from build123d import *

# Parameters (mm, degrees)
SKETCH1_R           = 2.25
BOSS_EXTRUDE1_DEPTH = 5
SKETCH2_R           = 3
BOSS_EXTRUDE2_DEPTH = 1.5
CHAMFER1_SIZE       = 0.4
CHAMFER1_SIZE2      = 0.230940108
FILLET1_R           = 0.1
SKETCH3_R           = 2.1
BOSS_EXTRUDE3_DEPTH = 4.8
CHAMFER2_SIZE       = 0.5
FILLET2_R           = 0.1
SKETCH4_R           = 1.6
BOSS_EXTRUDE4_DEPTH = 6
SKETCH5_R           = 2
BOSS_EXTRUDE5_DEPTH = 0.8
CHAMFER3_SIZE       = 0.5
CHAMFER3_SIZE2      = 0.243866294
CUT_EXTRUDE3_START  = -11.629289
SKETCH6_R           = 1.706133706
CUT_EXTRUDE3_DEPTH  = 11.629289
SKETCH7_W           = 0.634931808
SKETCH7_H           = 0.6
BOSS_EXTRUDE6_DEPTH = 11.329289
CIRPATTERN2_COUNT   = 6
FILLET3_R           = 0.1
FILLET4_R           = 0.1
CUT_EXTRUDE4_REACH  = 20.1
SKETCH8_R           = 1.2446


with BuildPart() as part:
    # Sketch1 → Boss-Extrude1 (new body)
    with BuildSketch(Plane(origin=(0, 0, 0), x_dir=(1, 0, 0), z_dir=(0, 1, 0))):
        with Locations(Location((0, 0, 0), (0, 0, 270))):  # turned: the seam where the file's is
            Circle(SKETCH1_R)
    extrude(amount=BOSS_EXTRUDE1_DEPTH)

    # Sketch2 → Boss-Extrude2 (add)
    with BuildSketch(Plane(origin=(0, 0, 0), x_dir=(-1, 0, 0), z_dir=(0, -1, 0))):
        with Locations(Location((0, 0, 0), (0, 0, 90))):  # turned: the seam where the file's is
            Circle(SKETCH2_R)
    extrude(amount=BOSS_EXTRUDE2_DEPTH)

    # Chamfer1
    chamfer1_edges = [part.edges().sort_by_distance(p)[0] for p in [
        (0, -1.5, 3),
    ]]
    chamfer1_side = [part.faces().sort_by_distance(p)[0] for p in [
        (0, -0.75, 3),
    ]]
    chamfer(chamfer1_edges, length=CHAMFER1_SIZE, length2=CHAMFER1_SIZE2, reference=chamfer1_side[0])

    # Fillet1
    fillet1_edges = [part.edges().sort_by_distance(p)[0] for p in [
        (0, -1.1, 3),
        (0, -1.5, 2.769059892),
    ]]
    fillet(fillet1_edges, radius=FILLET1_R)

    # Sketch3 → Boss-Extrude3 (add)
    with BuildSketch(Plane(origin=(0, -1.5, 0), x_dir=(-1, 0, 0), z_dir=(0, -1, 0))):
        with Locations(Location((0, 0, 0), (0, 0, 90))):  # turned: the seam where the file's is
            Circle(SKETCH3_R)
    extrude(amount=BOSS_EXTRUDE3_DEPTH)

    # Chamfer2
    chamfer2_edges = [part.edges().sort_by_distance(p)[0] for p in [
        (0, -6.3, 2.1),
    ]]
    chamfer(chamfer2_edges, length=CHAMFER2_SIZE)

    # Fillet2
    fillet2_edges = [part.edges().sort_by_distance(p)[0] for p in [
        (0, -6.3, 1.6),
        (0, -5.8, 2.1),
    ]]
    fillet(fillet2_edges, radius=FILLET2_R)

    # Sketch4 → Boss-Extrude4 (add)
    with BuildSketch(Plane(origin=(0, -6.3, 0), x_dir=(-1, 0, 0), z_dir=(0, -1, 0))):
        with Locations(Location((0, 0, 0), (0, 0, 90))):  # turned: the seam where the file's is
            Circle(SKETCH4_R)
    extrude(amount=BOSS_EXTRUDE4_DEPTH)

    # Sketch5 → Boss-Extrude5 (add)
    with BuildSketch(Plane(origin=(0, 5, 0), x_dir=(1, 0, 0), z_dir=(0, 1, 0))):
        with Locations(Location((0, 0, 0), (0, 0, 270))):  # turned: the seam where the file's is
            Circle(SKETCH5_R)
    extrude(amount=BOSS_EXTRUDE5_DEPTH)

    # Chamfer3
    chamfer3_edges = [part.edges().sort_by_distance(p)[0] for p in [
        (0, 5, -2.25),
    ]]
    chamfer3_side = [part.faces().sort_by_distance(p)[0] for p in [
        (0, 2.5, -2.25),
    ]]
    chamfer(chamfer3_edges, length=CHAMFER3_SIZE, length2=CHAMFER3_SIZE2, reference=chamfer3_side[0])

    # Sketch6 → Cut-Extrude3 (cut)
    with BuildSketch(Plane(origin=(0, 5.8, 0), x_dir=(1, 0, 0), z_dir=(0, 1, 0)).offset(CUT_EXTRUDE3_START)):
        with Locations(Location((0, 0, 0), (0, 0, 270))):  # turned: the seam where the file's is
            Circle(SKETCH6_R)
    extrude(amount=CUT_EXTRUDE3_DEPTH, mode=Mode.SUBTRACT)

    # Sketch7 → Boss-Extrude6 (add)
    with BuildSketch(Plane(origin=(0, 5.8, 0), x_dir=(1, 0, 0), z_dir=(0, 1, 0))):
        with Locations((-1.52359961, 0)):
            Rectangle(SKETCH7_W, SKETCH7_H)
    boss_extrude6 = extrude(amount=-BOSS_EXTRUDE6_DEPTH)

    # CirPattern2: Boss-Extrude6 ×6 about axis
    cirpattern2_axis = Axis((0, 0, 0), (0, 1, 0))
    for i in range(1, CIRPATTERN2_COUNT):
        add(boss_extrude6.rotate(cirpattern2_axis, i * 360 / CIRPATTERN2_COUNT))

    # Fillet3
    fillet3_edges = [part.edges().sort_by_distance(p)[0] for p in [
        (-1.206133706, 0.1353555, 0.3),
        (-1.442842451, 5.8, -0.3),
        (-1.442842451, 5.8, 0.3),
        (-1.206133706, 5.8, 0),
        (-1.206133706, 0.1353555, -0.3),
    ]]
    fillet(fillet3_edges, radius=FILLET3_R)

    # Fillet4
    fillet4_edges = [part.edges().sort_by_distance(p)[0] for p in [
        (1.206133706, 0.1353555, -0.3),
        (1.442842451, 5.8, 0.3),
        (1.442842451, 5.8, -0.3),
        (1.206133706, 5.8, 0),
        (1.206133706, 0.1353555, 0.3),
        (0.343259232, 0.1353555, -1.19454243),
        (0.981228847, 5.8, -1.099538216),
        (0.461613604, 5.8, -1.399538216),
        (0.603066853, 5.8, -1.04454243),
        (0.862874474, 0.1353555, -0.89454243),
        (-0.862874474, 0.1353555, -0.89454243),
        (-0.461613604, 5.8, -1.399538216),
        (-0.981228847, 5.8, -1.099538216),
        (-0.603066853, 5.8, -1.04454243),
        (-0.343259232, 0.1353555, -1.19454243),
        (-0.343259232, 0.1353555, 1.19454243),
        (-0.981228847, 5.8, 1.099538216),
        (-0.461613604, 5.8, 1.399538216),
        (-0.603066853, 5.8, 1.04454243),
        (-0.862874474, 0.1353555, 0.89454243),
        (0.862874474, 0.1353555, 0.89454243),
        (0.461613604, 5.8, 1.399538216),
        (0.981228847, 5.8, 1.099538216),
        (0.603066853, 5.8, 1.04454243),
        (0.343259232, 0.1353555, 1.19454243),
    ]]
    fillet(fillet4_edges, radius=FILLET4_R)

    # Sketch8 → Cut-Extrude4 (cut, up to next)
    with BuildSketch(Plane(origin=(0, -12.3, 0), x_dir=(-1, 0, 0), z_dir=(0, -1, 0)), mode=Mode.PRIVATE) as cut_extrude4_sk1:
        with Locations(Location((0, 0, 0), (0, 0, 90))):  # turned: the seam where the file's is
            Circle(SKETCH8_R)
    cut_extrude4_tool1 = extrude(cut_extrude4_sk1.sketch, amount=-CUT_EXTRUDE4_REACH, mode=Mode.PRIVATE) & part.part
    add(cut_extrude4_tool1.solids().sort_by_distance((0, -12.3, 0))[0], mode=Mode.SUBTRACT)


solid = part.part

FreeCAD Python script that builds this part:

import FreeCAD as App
import Part
import Sketcher
from FreeCAD import Vector
Q = App.Units.Quantity


def edges_at(feature, points):
    """Names of the edges that pass closest to the given points."""
    edges = feature.Shape.Edges
    near = lambda p: min(range(len(edges)), key=lambda i: edges[i].distToShape(Part.Vertex(*p))[0])
    return sorted({f"Edge{near(p) + 1}" for p in points})


def add_polygon(sketch, points):
    """Adds a closed chain of lines whose ends are joined by coincident constraints."""
    first, n = sketch.GeometryCount, len(points)
    for a, b in zip(points, points[1:] + points[:1]):
        sketch.addGeometry(Part.LineSegment(App.Vector(*a, 0), App.Vector(*b, 0)), False)
    for i in range(n):
        sketch.addConstraint(Sketcher.Constraint("Coincident", first + i, 2, first + (i + 1) % n, 1))

doc = App.newDocument("Part")
body = doc.addObject("PartDesign::Body", "Body")

sketch1 = doc.addObject("Sketcher::SketchObject", "Sketch")
body.addObject(sketch1)
sketch1.AttachmentSupport = (doc.XZ_Plane, [""])
sketch1.MapMode = "FlatFace"
sketch1.addGeometry(Part.Circle(Vector(0, 0, 0), Vector(0, 0, 1), 2.2), False)
sketch1.addConstraint(Sketcher.Constraint("Coincident", 0, 3, -1, 1))
sketch1.addConstraint(Sketcher.Constraint("Diameter", 0, Q("4.5 mm")))
pad1 = doc.addObject("PartDesign::Pad", "Pad")
body.addObject(pad1)
pad1.Profile = sketch1
pad1.Length = 5
pad1.Reversed = True

sketch2 = doc.addObject("Sketcher::SketchObject", "Sketch001")
body.addObject(sketch2)
sketch2.AttachmentSupport = (doc.XZ_Plane, [""])
sketch2.MapMode = "FlatFace"
sketch2.addGeometry(Part.Circle(Vector(0, 0, 0), Vector(0, 0, 1), 3), False)
sketch2.addConstraint(Sketcher.Constraint("Coincident", 0, 3, -1, 1))
sketch2.addConstraint(Sketcher.Constraint("Diameter", 0, Q("6 mm")))
pad2 = doc.addObject("PartDesign::Pad", "Pad001")
body.addObject(pad2)
pad2.Profile = sketch2
pad2.Length = 1.5
doc.recompute()

chamfer = doc.addObject("PartDesign::Chamfer", "Chamfer")
body.addObject(chamfer)
chamfer.Base = (pad2, edges_at(pad2, [(0, -1.5, 3)]))
chamfer.ChamferType = "Two distances"
chamfer.Size = 0.4
chamfer.Size2 = 0.23094
doc.recompute()

fillet = doc.addObject("PartDesign::Fillet", "Fillet")
body.addObject(fillet)
fillet.Base = (chamfer, edges_at(chamfer, [(0, -1.1, 3), (0, -1.5, 2.769)]))
fillet.Radius = 0.1

sketch3 = doc.addObject("Sketcher::SketchObject", "Sketch002")
body.addObject(sketch3)
sketch3.AttachmentSupport = (doc.XZ_Plane, [""])
sketch3.MapMode = "FlatFace"
sketch3.AttachmentOffset = App.Placement(Vector(0, 0, 1.5), App.Rotation())
sketch3.addGeometry(Part.Circle(Vector(0, 0, 0), Vector(0, 0, 1), 2.1), False)
sketch3.addConstraint(Sketcher.Constraint("Coincident", 0, 3, -1, 1))
sketch3.addConstraint(Sketcher.Constraint("Diameter", 0, Q("4.2 mm")))
pad3 = doc.addObject("PartDesign::Pad", "Pad002")
body.addObject(pad3)
pad3.Profile = sketch3
pad3.Length = 4.8
doc.recompute()

chamfer2 = doc.addObject("PartDesign::Chamfer", "Chamfer001")
body.addObject(chamfer2)
chamfer2.Base = (pad3, edges_at(pad3, [(0, -6.3, 2.1)]))
chamfer2.Size = 0.5
doc.recompute()

fillet2 = doc.addObject("PartDesign::Fillet", "Fillet001")
body.addObject(fillet2)
fillet2.Base = (chamfer2, edges_at(chamfer2, [(0, -6.3, 1.6), (0, -5.8, 2.1)]))
fillet2.Radius = 0.1

sketch4 = doc.addObject("Sketcher::SketchObject", "Sketch003")
body.addObject(sketch4)
sketch4.AttachmentSupport = (doc.XZ_Plane, [""])
sketch4.MapMode = "FlatFace"
sketch4.AttachmentOffset = App.Placement(Vector(0, 0, 6.3), App.Rotation())
sketch4.addGeometry(Part.Circle(Vector(0, 0, 0), Vector(0, 0, 1), 1.6), False)
sketch4.addConstraint(Sketcher.Constraint("Coincident", 0, 3, -1, 1))
sketch4.addConstraint(Sketcher.Constraint("Diameter", 0, Q("3.2 mm")))
pad4 = doc.addObject("PartDesign::Pad", "Pad003")
body.addObject(pad4)
pad4.Profile = sketch4
pad4.Length = 6

sketch5 = doc.addObject("Sketcher::SketchObject", "Sketch004")
body.addObject(sketch5)
sketch5.AttachmentSupport = (doc.XZ_Plane, [""])
sketch5.MapMode = "FlatFace"
sketch5.AttachmentOffset = App.Placement(Vector(0, 0, -5), App.Rotation())
sketch5.addGeometry(Part.Circle(Vector(0, 0, 0), Vector(0, 0, 1), 2), False)
sketch5.addConstraint(Sketcher.Constraint("Coincident", 0, 3, -1, 1))
sketch5.addConstraint(Sketcher.Constraint("Diameter", 0, Q("4 mm")))
pad5 = doc.addObject("PartDesign::Pad", "Pad004")
body.addObject(pad5)
pad5.Profile = sketch5
pad5.Length = 0.8
pad5.Reversed = True
doc.recompute()

chamfer3 = doc.addObject("PartDesign::Chamfer", "Chamfer002")
body.addObject(chamfer3)
chamfer3.Base = (pad5, edges_at(pad5, [(0, 5, -2.25)]))
chamfer3.ChamferType = "Two distances"
chamfer3.Size = 0.5
chamfer3.Size2 = 0.243866

sketch6 = doc.addObject("Sketcher::SketchObject", "Sketch005")
body.addObject(sketch6)
sketch6.AttachmentSupport = (doc.XZ_Plane, [""])
sketch6.MapMode = "FlatFace"
sketch6.AttachmentOffset = App.Placement(Vector(0, 0, 5.829289), App.Rotation())
sketch6.addGeometry(Part.Circle(Vector(0, 0, 0), Vector(0, 0, 1), 1.7), False)
sketch6.addConstraint(Sketcher.Constraint("Coincident", 0, 3, -1, 1))
sketch6.addConstraint(Sketcher.Constraint("Diameter", 0, Q("3.412267 mm")))
pocket1 = doc.addObject("PartDesign::Pocket", "Pocket")
body.addObject(pocket1)
pocket1.Profile = sketch6
pocket1.Length = 11.629289

sketch7 = doc.addObject("Sketcher::SketchObject", "Sketch006")
body.addObject(sketch7)
sketch7.AttachmentSupport = (doc.XZ_Plane, [""])
sketch7.MapMode = "FlatFace"
sketch7.AttachmentOffset = App.Placement(Vector(0, 0, -5.8), App.Rotation())
add_polygon(sketch7, [(-1.8, -0.3), (-1.8, 0.3), (-1.2, 0.3), (-1.2, -0.3)])
sketch7.addConstraint(Sketcher.Constraint("Vertical", 0))
sketch7.addConstraint(Sketcher.Constraint("Horizontal", 1))
sketch7.addConstraint(Sketcher.Constraint("Vertical", 2))
sketch7.addConstraint(Sketcher.Constraint("Horizontal", 3))
sketch7.addConstraint(Sketcher.Constraint("DistanceY", 0, 1, 0, 2, Q("0.6 mm")))
sketch7.addConstraint(Sketcher.Constraint("DistanceY", -1, 1, 0, 2, Q("0.3 mm")))
sketch7.addConstraint(Sketcher.Constraint("DistanceX", 1, 1, 1, 2, Q("0.634932 mm")))
sketch7.addConstraint(Sketcher.Constraint("DistanceX", 0, 2, -1, 1, Q("1.841066 mm")))
pad6 = doc.addObject("PartDesign::Pad", "Pad005")
body.addObject(pad6)
pad6.Profile = sketch7
pad6.Length = 11.329289
doc.recompute()

polarpattern = doc.addObject("PartDesign::PolarPattern", "PolarPattern")
body.addObject(polarpattern)
polarpattern.Originals = [pad6]
polarpattern.Axis = (doc.Y_Axis, [""])
polarpattern.Angle = 360
polarpattern.Occurrences = 6
body.Tip = polarpattern
doc.recompute()

fillet3 = doc.addObject("PartDesign::Fillet", "Fillet002")
body.addObject(fillet3)
fillet3.Base = (polarpattern, edges_at(polarpattern, [
    (-1.206, 0.135, 0.3),
    (-1.443, 5.8, -0.3),
    (-1.443, 5.8, 0.3),
    (-1.206, 5.8, 0),
    (-1.206, 0.135, -0.3),
]))
fillet3.Radius = 0.1
doc.recompute()

fillet4 = doc.addObject("PartDesign::Fillet", "Fillet003")
body.addObject(fillet4)
fillet4.Base = (fillet3, edges_at(fillet3, [
    (1.206, 0.135, -0.3),
    (1.443, 5.8, 0.3),
    (1.443, 5.8, -0.3),
    (1.206, 5.8, 0),
    (1.206, 0.135, 0.3),
    (0.343, 0.135, -1.195),
    (0.981, 5.8, -1.1),
    (0.462, 5.8, -1.4),
    (0.603, 5.8, -1.045),
    (0.863, 0.135, -0.895),
    (-0.863, 0.135, -0.895),
    (-0.462, 5.8, -1.4),
    (-0.981, 5.8, -1.1),
    (-0.603, 5.8, -1.045),
    (-0.343, 0.135, -1.195),
    (-0.343, 0.135, 1.195),
    (-0.981, 5.8, 1.1),
    (-0.462, 5.8, 1.4),
    (-0.603, 5.8, 1.045),
    (-0.863, 0.135, 0.895),
    (0.863, 0.135, 0.895),
    (0.462, 5.8, 1.4),
    (0.981, 5.8, 1.1),
    (0.603, 5.8, 1.045),
    (0.343, 0.135, 1.195),
]))
fillet4.Radius = 0.1

sketch8 = doc.addObject("Sketcher::SketchObject", "Sketch007")
body.addObject(sketch8)
sketch8.AttachmentSupport = (doc.XZ_Plane, [""])
sketch8.MapMode = "FlatFace"
sketch8.AttachmentOffset = App.Placement(Vector(0, 0, 12.3), App.Rotation())
sketch8.addGeometry(Part.Circle(Vector(0, 0, 0), Vector(0, 0, 1), 1.2), False)
sketch8.addConstraint(Sketcher.Constraint("Coincident", 0, 3, -1, 1))
sketch8.addConstraint(Sketcher.Constraint("Diameter", 0, Q("2.4892 mm")))
pocket2 = doc.addObject("PartDesign::Pocket", "Pocket001")
body.addObject(pocket2)
pocket2.Profile = sketch8
pocket2.Type = "UpToFirst"

doc.recompute()
